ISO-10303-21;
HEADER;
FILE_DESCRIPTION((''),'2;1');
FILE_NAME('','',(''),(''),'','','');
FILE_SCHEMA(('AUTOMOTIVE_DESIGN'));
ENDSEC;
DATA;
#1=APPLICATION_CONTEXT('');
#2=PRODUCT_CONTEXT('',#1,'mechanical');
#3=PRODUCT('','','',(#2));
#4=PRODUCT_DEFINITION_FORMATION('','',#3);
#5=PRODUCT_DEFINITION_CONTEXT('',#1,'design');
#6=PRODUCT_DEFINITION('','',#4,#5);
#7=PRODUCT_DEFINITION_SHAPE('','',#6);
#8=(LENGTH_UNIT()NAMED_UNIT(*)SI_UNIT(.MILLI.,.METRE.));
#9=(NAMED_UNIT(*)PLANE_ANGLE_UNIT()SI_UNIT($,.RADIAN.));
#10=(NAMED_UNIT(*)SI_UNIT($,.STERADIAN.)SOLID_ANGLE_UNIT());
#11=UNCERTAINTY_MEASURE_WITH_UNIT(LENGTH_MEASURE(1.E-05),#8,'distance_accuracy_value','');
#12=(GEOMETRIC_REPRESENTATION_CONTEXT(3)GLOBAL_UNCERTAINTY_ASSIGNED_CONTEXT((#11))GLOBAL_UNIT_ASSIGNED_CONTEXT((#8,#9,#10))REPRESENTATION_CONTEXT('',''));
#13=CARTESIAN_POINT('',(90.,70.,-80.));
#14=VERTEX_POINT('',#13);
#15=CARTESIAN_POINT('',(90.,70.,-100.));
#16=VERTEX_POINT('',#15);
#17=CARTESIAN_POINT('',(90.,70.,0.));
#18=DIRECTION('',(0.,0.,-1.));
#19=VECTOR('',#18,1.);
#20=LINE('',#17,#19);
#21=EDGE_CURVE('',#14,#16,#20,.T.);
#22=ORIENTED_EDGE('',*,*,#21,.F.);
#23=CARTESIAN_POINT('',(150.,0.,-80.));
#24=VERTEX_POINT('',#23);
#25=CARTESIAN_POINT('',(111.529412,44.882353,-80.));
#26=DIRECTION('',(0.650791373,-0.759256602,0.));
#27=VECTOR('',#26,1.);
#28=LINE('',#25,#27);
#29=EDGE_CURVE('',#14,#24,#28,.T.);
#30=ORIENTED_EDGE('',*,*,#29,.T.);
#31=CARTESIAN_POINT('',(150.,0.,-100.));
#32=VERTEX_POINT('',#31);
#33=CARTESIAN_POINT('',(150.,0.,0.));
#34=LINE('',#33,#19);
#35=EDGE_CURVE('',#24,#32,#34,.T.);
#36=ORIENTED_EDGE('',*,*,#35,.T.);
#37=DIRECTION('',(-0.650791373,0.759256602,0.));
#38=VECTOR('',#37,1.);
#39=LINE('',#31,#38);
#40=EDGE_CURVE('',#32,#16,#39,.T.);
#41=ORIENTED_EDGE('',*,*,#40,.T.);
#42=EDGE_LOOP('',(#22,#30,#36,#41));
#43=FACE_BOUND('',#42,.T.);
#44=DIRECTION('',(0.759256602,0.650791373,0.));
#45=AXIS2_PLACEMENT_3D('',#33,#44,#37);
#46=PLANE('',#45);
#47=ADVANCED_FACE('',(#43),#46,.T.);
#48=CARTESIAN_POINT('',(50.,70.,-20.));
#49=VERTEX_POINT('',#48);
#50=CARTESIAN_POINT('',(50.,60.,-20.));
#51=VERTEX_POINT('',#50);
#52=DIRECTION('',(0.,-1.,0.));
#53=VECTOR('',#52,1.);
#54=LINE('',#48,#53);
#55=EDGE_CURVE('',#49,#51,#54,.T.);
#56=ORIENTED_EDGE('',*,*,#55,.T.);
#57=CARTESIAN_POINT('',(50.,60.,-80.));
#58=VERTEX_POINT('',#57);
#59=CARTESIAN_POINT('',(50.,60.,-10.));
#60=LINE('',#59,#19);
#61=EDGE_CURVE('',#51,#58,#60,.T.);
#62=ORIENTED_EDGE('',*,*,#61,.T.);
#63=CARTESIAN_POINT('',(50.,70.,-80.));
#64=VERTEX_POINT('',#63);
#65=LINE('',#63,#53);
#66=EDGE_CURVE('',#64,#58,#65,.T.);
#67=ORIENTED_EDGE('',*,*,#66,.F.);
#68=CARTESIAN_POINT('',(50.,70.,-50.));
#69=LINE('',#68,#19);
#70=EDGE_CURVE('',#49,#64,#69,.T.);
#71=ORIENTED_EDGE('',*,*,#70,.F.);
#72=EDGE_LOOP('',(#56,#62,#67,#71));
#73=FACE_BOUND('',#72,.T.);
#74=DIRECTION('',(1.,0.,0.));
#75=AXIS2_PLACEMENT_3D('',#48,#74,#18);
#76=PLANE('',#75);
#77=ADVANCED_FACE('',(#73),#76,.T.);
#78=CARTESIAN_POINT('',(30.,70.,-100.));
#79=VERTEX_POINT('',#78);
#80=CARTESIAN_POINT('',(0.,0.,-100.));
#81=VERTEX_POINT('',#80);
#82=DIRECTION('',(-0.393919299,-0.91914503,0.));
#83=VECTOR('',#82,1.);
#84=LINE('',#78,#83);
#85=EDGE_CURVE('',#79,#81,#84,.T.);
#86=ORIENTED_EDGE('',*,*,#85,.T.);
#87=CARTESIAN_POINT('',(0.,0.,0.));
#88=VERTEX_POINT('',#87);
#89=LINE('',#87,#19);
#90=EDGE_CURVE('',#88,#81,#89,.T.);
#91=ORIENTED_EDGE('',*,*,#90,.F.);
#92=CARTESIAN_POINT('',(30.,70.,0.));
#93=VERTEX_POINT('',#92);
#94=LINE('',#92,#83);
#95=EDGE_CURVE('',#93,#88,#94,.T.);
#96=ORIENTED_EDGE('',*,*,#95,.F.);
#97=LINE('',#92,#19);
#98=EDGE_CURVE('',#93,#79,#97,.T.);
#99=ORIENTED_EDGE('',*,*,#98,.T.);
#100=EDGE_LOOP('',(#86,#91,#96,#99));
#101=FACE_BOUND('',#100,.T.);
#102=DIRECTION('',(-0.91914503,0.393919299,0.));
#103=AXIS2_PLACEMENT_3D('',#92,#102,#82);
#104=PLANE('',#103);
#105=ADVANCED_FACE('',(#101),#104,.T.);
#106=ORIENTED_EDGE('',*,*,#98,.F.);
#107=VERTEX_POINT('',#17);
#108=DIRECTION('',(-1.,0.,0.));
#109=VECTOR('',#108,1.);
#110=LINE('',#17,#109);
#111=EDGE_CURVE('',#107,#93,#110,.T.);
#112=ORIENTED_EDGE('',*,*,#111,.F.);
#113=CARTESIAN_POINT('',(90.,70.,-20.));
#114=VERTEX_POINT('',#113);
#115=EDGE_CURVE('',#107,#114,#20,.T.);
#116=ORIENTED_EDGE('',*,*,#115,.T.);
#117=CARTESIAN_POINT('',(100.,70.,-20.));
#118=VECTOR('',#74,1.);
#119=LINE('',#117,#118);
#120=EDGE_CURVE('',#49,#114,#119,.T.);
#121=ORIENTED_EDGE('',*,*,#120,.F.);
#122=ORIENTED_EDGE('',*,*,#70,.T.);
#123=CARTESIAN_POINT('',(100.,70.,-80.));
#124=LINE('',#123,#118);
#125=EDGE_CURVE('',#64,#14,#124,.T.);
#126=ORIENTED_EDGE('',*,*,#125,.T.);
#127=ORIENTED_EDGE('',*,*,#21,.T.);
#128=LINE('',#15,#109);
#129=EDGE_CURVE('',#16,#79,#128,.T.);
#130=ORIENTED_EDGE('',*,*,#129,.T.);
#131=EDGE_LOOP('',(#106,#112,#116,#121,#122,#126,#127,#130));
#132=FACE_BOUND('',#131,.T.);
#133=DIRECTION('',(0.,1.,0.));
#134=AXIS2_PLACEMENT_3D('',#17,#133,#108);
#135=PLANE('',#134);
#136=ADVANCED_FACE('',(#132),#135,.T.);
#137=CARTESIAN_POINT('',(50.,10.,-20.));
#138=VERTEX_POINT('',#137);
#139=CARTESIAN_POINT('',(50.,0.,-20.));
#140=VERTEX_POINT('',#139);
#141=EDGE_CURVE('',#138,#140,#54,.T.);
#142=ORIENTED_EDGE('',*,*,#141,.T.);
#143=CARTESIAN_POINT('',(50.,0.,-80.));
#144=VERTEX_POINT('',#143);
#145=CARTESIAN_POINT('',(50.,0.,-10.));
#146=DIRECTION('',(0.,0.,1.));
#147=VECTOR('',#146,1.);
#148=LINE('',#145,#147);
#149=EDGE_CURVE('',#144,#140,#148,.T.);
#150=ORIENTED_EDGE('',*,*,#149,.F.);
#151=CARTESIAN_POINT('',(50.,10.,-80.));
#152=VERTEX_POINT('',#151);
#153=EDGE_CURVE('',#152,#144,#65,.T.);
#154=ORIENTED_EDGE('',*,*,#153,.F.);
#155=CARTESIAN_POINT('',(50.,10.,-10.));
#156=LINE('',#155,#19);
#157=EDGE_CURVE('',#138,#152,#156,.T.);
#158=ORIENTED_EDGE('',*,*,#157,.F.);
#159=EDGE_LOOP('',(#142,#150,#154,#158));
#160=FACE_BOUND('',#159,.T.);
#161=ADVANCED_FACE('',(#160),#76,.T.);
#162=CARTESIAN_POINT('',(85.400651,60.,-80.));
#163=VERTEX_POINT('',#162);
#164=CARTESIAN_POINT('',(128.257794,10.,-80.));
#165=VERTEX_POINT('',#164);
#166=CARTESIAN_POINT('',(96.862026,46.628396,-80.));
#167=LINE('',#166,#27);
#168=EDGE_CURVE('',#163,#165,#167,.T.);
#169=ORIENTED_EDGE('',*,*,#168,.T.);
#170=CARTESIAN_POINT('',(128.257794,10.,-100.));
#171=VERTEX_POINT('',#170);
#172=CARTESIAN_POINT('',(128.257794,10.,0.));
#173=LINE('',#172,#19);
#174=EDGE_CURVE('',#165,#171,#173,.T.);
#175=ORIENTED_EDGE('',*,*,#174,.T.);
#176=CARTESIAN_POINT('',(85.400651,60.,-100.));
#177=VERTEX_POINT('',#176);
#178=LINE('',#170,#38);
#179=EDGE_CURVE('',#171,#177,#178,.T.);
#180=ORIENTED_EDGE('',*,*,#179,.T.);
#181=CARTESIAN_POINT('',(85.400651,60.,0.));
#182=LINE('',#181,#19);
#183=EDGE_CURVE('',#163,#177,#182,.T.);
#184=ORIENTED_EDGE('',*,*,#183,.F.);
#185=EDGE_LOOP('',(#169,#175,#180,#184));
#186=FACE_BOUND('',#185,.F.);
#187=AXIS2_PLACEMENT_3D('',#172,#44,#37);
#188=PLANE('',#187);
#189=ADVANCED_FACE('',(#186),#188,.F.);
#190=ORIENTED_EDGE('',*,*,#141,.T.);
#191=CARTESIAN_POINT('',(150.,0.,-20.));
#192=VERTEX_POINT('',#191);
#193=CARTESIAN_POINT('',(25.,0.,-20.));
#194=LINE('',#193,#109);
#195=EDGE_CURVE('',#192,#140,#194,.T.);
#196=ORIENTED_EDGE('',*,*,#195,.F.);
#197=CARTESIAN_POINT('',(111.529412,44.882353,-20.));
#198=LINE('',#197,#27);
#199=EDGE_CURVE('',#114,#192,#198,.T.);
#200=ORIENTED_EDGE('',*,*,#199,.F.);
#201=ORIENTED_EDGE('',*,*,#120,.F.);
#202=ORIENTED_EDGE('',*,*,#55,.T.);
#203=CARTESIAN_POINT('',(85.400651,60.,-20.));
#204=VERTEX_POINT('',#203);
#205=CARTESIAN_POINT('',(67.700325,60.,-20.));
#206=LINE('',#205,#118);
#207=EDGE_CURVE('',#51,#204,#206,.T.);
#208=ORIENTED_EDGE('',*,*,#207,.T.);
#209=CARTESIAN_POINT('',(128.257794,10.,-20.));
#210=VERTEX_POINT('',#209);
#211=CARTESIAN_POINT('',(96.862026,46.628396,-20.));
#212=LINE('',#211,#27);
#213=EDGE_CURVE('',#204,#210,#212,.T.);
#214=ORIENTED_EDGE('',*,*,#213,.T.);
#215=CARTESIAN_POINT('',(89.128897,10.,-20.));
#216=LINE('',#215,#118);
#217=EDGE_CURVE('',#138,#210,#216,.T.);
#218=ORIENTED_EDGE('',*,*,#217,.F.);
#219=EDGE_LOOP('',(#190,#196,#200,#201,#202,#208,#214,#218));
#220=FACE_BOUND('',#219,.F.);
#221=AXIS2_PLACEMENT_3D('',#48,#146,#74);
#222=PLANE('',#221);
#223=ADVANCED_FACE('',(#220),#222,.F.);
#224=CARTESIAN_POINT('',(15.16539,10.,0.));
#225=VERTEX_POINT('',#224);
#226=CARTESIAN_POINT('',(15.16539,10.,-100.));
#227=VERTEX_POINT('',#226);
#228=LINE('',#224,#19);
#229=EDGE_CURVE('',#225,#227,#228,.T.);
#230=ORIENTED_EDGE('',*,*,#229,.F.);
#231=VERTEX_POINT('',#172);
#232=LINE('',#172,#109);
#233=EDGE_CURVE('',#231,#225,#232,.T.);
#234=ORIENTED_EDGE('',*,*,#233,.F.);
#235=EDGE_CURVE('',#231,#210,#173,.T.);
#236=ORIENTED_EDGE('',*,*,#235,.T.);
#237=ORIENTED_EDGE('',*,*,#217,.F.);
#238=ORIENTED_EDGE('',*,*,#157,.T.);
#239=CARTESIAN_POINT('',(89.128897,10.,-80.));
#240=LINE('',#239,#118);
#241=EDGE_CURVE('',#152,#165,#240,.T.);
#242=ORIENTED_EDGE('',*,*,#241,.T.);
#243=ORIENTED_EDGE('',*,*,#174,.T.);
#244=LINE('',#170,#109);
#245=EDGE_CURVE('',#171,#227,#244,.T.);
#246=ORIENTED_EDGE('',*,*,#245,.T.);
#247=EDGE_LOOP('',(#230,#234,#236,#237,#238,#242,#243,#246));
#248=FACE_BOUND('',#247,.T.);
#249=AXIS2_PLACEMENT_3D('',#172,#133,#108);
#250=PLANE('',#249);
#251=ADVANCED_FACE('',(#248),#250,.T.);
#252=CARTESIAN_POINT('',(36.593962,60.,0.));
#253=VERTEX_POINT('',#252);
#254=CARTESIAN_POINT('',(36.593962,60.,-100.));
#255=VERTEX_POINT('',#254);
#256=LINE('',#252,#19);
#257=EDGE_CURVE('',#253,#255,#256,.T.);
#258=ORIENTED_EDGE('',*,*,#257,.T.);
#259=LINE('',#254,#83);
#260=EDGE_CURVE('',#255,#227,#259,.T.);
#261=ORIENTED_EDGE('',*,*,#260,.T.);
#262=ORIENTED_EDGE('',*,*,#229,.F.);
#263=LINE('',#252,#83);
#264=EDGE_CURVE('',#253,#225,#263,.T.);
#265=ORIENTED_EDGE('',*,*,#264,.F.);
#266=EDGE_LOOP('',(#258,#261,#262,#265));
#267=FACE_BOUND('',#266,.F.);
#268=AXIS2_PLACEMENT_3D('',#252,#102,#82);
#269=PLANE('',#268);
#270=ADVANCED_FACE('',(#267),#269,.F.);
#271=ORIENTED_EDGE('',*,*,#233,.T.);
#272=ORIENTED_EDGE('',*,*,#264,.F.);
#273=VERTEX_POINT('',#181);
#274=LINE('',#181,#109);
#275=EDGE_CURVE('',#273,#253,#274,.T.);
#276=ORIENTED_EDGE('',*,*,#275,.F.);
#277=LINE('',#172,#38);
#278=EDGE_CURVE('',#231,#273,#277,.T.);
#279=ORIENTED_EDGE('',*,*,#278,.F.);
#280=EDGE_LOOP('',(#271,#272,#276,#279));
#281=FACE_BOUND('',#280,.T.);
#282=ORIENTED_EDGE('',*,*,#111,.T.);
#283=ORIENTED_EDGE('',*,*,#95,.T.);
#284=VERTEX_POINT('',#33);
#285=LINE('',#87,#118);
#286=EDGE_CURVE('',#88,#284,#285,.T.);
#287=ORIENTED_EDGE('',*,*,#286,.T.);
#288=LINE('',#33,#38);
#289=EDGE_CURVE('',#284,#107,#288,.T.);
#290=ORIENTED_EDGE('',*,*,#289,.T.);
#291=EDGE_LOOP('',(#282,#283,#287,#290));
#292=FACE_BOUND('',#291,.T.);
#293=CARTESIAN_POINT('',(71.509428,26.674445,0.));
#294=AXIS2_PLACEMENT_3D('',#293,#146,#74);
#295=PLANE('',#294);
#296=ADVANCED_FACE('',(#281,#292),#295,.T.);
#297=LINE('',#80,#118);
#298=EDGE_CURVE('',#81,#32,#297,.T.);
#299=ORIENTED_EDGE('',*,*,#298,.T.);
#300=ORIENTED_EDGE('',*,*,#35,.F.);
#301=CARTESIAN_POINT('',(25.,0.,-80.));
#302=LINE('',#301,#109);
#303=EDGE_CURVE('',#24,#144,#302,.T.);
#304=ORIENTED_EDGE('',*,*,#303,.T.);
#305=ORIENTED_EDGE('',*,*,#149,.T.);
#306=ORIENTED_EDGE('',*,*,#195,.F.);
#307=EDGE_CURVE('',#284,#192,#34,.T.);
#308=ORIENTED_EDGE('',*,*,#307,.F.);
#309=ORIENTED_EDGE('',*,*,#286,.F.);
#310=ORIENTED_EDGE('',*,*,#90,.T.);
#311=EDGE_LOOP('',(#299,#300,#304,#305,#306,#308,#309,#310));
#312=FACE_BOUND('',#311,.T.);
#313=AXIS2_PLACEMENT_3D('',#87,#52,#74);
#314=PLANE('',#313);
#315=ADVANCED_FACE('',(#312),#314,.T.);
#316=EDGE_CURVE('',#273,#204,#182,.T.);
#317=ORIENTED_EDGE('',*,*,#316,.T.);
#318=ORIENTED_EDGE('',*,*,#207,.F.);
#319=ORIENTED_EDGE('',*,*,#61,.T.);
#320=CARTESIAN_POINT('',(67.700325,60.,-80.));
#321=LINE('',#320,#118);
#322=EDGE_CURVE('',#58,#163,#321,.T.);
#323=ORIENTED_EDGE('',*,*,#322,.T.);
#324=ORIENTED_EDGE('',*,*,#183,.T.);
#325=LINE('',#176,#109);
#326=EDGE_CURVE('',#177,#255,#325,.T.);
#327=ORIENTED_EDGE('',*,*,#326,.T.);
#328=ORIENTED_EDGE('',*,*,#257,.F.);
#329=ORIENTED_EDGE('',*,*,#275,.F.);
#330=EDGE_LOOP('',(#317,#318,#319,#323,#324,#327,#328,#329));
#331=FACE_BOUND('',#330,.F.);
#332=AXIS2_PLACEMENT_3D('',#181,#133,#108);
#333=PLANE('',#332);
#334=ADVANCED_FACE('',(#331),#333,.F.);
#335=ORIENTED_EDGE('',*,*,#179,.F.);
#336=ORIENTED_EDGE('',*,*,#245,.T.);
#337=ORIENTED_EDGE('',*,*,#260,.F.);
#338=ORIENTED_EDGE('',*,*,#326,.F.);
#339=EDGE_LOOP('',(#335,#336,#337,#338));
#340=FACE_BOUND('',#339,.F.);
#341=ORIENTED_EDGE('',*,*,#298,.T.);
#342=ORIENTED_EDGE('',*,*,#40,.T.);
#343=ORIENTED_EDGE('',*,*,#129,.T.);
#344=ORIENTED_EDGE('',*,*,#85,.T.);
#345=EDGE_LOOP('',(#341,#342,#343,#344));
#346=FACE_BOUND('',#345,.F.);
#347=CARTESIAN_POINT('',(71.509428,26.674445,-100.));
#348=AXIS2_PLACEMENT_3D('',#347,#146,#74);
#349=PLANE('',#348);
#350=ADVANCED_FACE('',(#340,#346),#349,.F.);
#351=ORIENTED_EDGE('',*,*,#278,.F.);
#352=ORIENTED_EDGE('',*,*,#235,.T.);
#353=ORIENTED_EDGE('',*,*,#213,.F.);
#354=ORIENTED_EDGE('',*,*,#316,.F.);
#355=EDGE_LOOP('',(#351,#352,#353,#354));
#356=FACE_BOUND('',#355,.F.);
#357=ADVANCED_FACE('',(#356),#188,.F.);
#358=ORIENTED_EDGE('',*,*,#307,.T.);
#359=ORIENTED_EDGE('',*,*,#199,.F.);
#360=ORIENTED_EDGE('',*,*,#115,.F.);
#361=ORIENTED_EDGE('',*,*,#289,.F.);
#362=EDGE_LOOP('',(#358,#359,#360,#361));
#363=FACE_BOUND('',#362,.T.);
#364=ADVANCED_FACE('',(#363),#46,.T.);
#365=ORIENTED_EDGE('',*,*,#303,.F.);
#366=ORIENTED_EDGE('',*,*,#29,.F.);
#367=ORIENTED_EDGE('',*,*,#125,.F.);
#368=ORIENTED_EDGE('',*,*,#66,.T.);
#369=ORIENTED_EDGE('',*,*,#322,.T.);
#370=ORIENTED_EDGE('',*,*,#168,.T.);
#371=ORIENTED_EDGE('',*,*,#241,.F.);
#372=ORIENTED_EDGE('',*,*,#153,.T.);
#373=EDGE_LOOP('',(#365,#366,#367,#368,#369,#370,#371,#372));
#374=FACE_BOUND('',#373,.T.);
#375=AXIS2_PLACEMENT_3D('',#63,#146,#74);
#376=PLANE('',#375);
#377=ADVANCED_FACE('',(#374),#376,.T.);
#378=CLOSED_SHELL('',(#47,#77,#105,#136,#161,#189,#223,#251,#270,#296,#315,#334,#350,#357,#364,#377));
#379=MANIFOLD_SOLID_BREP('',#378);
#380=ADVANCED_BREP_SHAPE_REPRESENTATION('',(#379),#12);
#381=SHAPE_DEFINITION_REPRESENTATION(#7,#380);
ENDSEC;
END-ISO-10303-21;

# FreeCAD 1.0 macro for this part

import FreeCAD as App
import Part
import Sketcher
Q = App.Units.Quantity

doc = App.newDocument("Part")
body = doc.addObject("PartDesign::Body", "Body")

# Sketch on XY plane
sketch1 = body.newObject("Sketcher::SketchObject", "Sketch")
sketch1.AttachmentSupport = (doc.getObject("XY_Plane"), [""])
sketch1.MapMode = "FlatFace"
sketch1.addGeometry([
    Part.LineSegment(App.Vector(150, 0, 0), App.Vector(90, 70, 0)),  # 0
    Part.LineSegment(App.Vector(90, 70, 0), App.Vector(30, 70, 0)),  # 1
    Part.LineSegment(App.Vector(30, 70, 0), App.Vector(0, 0, 0)),  # 2
    Part.LineSegment(App.Vector(0, 0, 0), App.Vector(150, 0, 0)),  # 3
    Part.LineSegment(App.Vector(85, 60, 0), App.Vector(128, 10, 0)),  # 4
    Part.LineSegment(App.Vector(128, 10, 0), App.Vector(15, 10, 0)),  # 5
    Part.LineSegment(App.Vector(15, 10, 0), App.Vector(37, 60, 0)),  # 6
    Part.LineSegment(App.Vector(37, 60, 0), App.Vector(85, 60, 0)),  # 7
], False)
sketch1.addConstraint([
    Sketcher.Constraint("Coincident", 0, 2, 1, 1),
    Sketcher.Constraint("Coincident", 1, 2, 2, 1),
    Sketcher.Constraint("Coincident", 2, 2, 3, 1),
    Sketcher.Constraint("Coincident", 3, 2, 0, 1),
    Sketcher.Constraint("Coincident", 4, 2, 5, 1),
    Sketcher.Constraint("Coincident", 5, 2, 6, 1),
    Sketcher.Constraint("Coincident", 6, 2, 7, 1),
    Sketcher.Constraint("Coincident", 7, 2, 4, 1),
    Sketcher.Constraint("Horizontal", 1),
    Sketcher.Constraint("Horizontal", 3),
    Sketcher.Constraint("Horizontal", 5),
    Sketcher.Constraint("Horizontal", 7),
    Sketcher.Constraint("Coincident", 2, 2, -1, 1),
    Sketcher.Constraint("Parallel", 0, 4),
    Sketcher.Constraint("Parallel", 2, 6),
    Sketcher.Constraint("DistanceX", 1, 2, 1, 1, Q("60 mm")),
    Sketcher.Constraint("DistanceX", 3, 1, 3, 2, Q("150 mm")),
    Sketcher.Constraint("DistanceX", -1, 1, 0, 2, Q("90 mm")),
    Sketcher.Constraint("DistanceY", -1, 1, 0, 2, Q("70 mm")),
    Sketcher.Constraint("DistanceY", -1, 1, 4, 2, Q("10 mm")),
    Sketcher.Constraint("DistanceY", -1, 1, 6, 2, Q("60 mm")),
    Sketcher.Constraint("DistanceX", 7, 1, 7, 2, Q("48.806689 mm")),
    Sketcher.Constraint("DistanceX", -1, 1, 5, 2, Q("15.16539 mm")),
])
pad1 = body.newObject("PartDesign::Pad", "Pad")
pad1.Profile = sketch1
pad1.Length = 100
pad1.Reversed = True

# Sketch on XZ plane
sketch2 = body.newObject("Sketcher::SketchObject", "Sketch001")
sketch2.AttachmentSupport = (doc.getObject("XZ_Plane"), [""])
sketch2.MapMode = "FlatFace"
sketch2.AttachmentOffset = App.Placement(App.Vector(0, 0, -70), App.Rotation())
sketch2.addGeometry([
    Part.LineSegment(App.Vector(50, -80, 0), App.Vector(50, -20, 0)),
    Part.LineSegment(App.Vector(50, -20, 0), App.Vector(150, -20, 0)),
    Part.LineSegment(App.Vector(150, -20, 0), App.Vector(150, -80, 0)),
    Part.LineSegment(App.Vector(150, -80, 0), App.Vector(50, -80, 0)),
], False)
sketch2.addConstraint([
    Sketcher.Constraint("Coincident", 0, 2, 1, 1),
    Sketcher.Constraint("Coincident", 1, 2, 2, 1),
    Sketcher.Constraint("Coincident", 2, 2, 3, 1),
    Sketcher.Constraint("Coincident", 3, 2, 0, 1),
    Sketcher.Constraint("Vertical", 0),
    Sketcher.Constraint("Horizontal", 1),
    Sketcher.Constraint("Vertical", 2),
    Sketcher.Constraint("Horizontal", 3),
    Sketcher.Constraint("DistanceX", 1, 1, 1, 2, Q("100 mm")),
    Sketcher.Constraint("DistanceY", 0, 1, 0, 2, Q("60 mm")),
    Sketcher.Constraint("DistanceX", -1, 1, 0, 2, Q("50 mm")),
    Sketcher.Constraint("DistanceY", 0, 2, -1, 1, Q("20 mm")),
])
pocket1 = body.newObject("PartDesign::Pocket", "Pocket")
pocket1.Profile = sketch2
pocket1.Type = "ThroughAll"
pocket1.Reversed = True

doc.recompute()
